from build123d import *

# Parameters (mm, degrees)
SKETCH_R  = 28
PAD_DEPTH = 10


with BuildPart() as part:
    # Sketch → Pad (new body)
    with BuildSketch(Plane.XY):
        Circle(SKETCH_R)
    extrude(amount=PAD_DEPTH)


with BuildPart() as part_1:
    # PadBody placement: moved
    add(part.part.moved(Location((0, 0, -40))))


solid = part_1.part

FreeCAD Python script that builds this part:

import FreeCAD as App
import Part
import Sketcher

V = App.Vector
Q = App.Units.Quantity

doc = App.newDocument("Part")
body = doc.addObject("PartDesign::Body", "Body")

sketch1 = doc.addObject("Sketcher::SketchObject", "Sketch")
body.addObject(sketch1)
sketch1.AttachmentSupport = (doc.XY_Plane, [""])
sketch1.MapMode = "FlatFace"
sketch1.addGeometry(Part.Circle(V(0, 0, 0), V(0, 0, 1), 28), False)
sketch1.addConstraint([
    Sketcher.Constraint("Coincident", 0, 3, -1, 1),
    Sketcher.Constraint("Diameter", 0, Q("56 mm")),
])
pad1 = doc.addObject("PartDesign::Pad", "Pad")
body.addObject(pad1)
pad1.Profile = sketch1
pad1.Length = 10
body2 = doc.addObject("PartDesign::Body", "Body001")
doc.recompute()

body.Placement = App.Placement(V(0, 0, -40), App.Rotation(V(0, 0, 1), 0))
boolean = doc.addObject("PartDesign::Boolean", "Boolean")
body2.addObject(boolean)
boolean.Type = "Fuse"
boolean.addObjects([body])

doc.recompute()
